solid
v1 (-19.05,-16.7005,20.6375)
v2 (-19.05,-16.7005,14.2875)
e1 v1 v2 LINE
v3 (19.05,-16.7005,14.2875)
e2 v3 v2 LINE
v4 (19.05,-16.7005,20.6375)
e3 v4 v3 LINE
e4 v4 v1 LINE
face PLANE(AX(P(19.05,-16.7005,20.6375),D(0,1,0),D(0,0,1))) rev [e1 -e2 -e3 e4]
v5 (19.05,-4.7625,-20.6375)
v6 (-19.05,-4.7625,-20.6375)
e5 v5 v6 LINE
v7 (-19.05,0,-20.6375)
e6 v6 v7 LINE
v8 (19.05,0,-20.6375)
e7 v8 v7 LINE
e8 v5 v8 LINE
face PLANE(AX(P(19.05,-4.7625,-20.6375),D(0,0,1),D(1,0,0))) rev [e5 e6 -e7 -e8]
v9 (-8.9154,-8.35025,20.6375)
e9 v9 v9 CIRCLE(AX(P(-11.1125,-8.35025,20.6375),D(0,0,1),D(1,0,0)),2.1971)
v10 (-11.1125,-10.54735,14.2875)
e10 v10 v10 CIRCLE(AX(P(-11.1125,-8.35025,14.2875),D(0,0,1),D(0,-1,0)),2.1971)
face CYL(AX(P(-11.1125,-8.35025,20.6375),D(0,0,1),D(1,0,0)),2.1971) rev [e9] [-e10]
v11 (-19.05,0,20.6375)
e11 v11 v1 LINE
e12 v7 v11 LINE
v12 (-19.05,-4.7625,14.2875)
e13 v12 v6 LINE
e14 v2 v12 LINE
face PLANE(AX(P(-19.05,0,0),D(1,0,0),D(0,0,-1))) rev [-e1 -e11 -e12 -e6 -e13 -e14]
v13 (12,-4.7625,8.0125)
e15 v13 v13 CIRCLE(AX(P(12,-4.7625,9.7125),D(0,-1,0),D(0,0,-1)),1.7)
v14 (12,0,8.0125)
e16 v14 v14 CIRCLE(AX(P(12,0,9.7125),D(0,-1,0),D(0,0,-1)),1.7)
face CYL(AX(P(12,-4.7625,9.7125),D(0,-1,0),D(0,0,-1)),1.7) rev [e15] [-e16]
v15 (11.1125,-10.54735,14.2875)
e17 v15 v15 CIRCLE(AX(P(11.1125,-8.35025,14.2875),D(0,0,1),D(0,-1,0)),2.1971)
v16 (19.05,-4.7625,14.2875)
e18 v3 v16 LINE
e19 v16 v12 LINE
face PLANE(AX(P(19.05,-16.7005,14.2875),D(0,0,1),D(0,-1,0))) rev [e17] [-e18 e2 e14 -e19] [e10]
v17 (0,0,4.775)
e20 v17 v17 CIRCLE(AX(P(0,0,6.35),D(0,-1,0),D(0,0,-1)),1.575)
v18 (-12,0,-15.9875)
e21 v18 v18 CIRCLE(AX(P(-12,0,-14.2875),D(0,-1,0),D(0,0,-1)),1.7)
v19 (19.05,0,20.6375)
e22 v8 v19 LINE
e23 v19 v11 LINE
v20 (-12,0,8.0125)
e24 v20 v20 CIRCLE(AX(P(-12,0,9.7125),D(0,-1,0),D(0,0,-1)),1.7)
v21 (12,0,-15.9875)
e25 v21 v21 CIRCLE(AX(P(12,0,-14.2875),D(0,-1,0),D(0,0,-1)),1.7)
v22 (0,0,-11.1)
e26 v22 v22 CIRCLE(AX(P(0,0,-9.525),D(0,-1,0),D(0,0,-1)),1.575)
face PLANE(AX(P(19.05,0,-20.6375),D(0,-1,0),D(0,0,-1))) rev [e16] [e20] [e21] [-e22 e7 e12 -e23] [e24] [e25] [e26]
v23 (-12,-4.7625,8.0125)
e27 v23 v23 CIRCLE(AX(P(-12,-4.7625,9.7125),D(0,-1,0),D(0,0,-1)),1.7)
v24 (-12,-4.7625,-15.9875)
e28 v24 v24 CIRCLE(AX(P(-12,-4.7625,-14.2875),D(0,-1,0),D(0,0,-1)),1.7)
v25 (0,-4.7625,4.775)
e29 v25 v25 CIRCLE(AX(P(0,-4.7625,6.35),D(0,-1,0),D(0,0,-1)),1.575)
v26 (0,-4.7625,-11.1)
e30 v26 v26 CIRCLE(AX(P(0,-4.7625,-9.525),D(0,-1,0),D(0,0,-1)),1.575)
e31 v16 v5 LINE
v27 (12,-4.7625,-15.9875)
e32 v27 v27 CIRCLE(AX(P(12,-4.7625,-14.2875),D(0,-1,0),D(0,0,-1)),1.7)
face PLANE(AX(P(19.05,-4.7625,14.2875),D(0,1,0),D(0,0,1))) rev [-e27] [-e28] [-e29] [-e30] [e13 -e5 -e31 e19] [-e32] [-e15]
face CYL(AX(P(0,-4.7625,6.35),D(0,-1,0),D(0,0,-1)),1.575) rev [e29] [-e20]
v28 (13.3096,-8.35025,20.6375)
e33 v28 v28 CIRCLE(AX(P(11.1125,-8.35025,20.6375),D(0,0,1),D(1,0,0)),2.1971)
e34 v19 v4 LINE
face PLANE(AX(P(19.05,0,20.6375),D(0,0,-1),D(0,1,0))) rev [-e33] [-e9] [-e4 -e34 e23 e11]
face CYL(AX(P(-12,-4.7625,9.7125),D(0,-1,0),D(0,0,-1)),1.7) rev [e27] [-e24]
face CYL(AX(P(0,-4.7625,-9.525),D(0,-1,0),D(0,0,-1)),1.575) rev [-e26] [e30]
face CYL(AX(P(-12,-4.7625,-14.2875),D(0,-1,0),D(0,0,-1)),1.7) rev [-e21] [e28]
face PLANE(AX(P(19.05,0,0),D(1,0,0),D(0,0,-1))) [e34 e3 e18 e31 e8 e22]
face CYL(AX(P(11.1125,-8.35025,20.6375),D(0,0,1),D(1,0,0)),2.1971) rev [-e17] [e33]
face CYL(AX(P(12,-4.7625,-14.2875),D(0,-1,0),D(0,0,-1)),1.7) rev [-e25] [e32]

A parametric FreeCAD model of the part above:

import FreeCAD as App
import Part
import Sketcher
Q = App.Units.Quantity

doc = App.newDocument("Part")
params = doc.addObject("Spreadsheet::Sheet", "Params")
for row, (alias, value) in enumerate([
    ("sketch1_width", "0.47 in"),
    ("sketch1_height", "0.25 in"),
    ("sketch1_width2", "0.1875 in"),
    ("sketch1_height2", "1.625 in"),
    ("pad1_length", "1.5 in"),
    ("hole_diameter", "3.4 mm"),
    ("hole2_diameter", "3.15 mm"),
    ("sketch4_diameter", "0.173 in"),
    ("hole3_diameter", "0.173 in"),
], start=1):
    params.set(f"A{row}", alias)
    params.set(f"B{row}", "=" + value)
    params.setAlias(f"B{row}", alias)

body = doc.addObject("PartDesign::Body", "Body")

sketch1 = body.newObject("Sketcher::SketchObject", "Sketch")
sketch1.AttachmentSupport = (doc.getObject("YZ_Plane"), [""])
sketch1.MapMode = "FlatFace"
sketch1.addGeometry([
    Part.LineSegment(App.Vector(0, -20.6, 0), App.Vector(0, 20.6, 0)),
    Part.LineSegment(App.Vector(0, 20.6, 0), App.Vector(-16.7, 20.6, 0)),
    Part.LineSegment(App.Vector(-16.7, 20.6, 0), App.Vector(-16.7, 14.3, 0)),
    Part.LineSegment(App.Vector(-16.7, 14.3, 0), App.Vector(-4.8, 14.3, 0)),
    Part.LineSegment(App.Vector(-4.8, 14.3, 0), App.Vector(-4.8, -20.6, 0)),
    Part.LineSegment(App.Vector(-4.8, -20.6, 0), App.Vector(0, -20.6, 0)),
], False)
sketch1.addConstraint([
    Sketcher.Constraint("Coincident", 0, 2, 1, 1),
    Sketcher.Constraint("Coincident", 1, 2, 2, 1),
    Sketcher.Constraint("Coincident", 2, 2, 3, 1),
    Sketcher.Constraint("Coincident", 3, 2, 4, 1),
    Sketcher.Constraint("Coincident", 4, 2, 5, 1),
    Sketcher.Constraint("Coincident", 5, 2, 0, 1),
    Sketcher.Constraint("Vertical", 0),
    Sketcher.Constraint("Horizontal", 1),
    Sketcher.Constraint("Vertical", 2),
    Sketcher.Constraint("Horizontal", 3),
    Sketcher.Constraint("Vertical", 4),
    Sketcher.Constraint("Horizontal", 5),
    Sketcher.Constraint("Symmetric", 0, 2, 5, 2, -1, 1),
    Sketcher.Constraint("DistanceX", 3, 1, 3, 2, Q("0.47 in")),
    Sketcher.Constraint("DistanceY", 2, 2, 2, 1, Q("0.25 in")),
    Sketcher.Constraint("DistanceX", 5, 1, 5, 2, Q("0.1875 in")),
    Sketcher.Constraint("DistanceY", 0, 1, 0, 2, Q("1.625 in")),
])
sketch1.setExpression("Constraints[13]", "Params.sketch1_width")
sketch1.setExpression("Constraints[14]", "Params.sketch1_height")
sketch1.setExpression("Constraints[15]", "Params.sketch1_width2")
sketch1.setExpression("Constraints[16]", "Params.sketch1_height2")
pad1 = body.newObject("PartDesign::Pad", "Pad")
pad1.Profile = sketch1
pad1.setExpression("Length", "Params.pad1_length")
pad1.Midplane = True

sketch2 = body.newObject("Sketcher::SketchObject", "Sketch001")
sketch2.AttachmentSupport = (doc.getObject("XZ_Plane"), [""])
sketch2.MapMode = "FlatFace"
sketch2.AttachmentOffset = App.Placement(App.Vector(0, 0, 0.1875 * 25.4), App.Rotation())
sketch2.addGeometry([
    Part.Circle(App.Vector(12, -14.3, 0), App.Vector(0, 0, 1), 1.7),
    Part.Circle(App.Vector(-12, -14.3, 0), App.Vector(0, 0, 1), 1.7),
    Part.Circle(App.Vector(-12, 9.7, 0), App.Vector(0, 0, 1), 1.7),
    Part.Circle(App.Vector(12, 9.7, 0), App.Vector(0, 0, 1), 1.7),
], False)
sketch2.addConstraint([
    Sketcher.Constraint("Equal", 0, 1),
    Sketcher.Constraint("Equal", 1, 2),
    Sketcher.Constraint("Equal", 2, 3),
    Sketcher.Constraint("Symmetric", 0, 3, 1, 3, -2),
    Sketcher.Constraint("Symmetric", 2, 3, 3, 3, -2),
    Sketcher.Constraint("Vertical", 1, 3, 2, 3),
    Sketcher.Constraint("Diameter", 0, Q("3.4 mm")),
    Sketcher.Constraint("DistanceY", 0, 3, -1, 1, Q("0.5625 in")),
    Sketcher.Constraint("DistanceX", -1, 1, 0, 3, Q("12 mm")),
    Sketcher.Constraint("DistanceY", -1, 1, 2, 3, Q("9.7125 mm")),
])
doc.recompute()
hole = body.newObject("PartDesign::Hole", "Hole")
hole.Profile = sketch2
hole.ThreadType = "None"
hole.setExpression("Diameter", "Params.hole_diameter")
hole.DepthType = "ThroughAll"

sketch3 = body.newObject("Sketcher::SketchObject", "Sketch002")
sketch3.AttachmentSupport = (doc.getObject("XZ_Plane"), [""])
sketch3.MapMode = "FlatFace"
sketch3.AttachmentOffset = App.Placement(App.Vector(0, 0, 0.1875 * 25.4), App.Rotation())
sketch3.addGeometry([
    Part.Circle(App.Vector(0, 6.3, 0), App.Vector(0, 0, 1), 1.6),
    Part.Circle(App.Vector(0, -9.5, 0), App.Vector(0, 0, 1), 1.6),
], False)
sketch3.addConstraint([
    Sketcher.Constraint("Equal", 0, 1),
    Sketcher.Constraint("PointOnObject", 0, 3, -2),
    Sketcher.Constraint("PointOnObject", 1, 3, -2),
    Sketcher.Constraint("Diameter", 0, Q("3.15 mm")),
    Sketcher.Constraint("DistanceY", -1, 1, 0, 3, Q("0.25 in")),
    Sketcher.Constraint("DistanceY", 1, 3, -1, 1, Q("0.375 in")),
])
doc.recompute()
hole2 = body.newObject("PartDesign::Hole", "Hole001")
hole2.Profile = sketch3
hole2.ThreadType = "None"
hole2.setExpression("Diameter", "Params.hole2_diameter")
hole2.DepthType = "ThroughAll"

sketch4 = body.newObject("Sketcher::SketchObject", "Sketch003")
sketch4.AttachmentSupport = (doc.getObject("XY_Plane"), [""])
sketch4.MapMode = "FlatFace"
sketch4.AttachmentOffset = App.Placement(App.Vector(0, 0, 0.8125 * 25.4), App.Rotation())
sketch4.addGeometry([
    Part.Circle(App.Vector(-11.1, -8.4, 0), App.Vector(0, 0, 1), 2.2),
    Part.Circle(App.Vector(11.1, -8.4, 0), App.Vector(0, 0, 1), 2.2),
], False)
sketch4.addConstraint([
    Sketcher.Constraint("Equal", 0, 1),
    Sketcher.Constraint("Symmetric", 0, 3, 1, 3, -2),
    Sketcher.Constraint("Diameter", 0, Q("0.173 in")),
    Sketcher.Constraint("DistanceX", 0, 3, -1, 1, Q("0.4375 in")),
    Sketcher.Constraint("DistanceY", 0, 3, -1, 1, Q("8.35025 mm")),
])
sketch4.setExpression("Constraints[2]", "Params.sketch4_diameter")
doc.recompute()
hole3 = body.newObject("PartDesign::Hole", "Hole002")
hole3.Profile = sketch4
hole3.ThreadType = "None"
hole3.setExpression("Diameter", "Params.hole3_diameter")
hole3.DepthType = "ThroughAll"

doc.recompute()
